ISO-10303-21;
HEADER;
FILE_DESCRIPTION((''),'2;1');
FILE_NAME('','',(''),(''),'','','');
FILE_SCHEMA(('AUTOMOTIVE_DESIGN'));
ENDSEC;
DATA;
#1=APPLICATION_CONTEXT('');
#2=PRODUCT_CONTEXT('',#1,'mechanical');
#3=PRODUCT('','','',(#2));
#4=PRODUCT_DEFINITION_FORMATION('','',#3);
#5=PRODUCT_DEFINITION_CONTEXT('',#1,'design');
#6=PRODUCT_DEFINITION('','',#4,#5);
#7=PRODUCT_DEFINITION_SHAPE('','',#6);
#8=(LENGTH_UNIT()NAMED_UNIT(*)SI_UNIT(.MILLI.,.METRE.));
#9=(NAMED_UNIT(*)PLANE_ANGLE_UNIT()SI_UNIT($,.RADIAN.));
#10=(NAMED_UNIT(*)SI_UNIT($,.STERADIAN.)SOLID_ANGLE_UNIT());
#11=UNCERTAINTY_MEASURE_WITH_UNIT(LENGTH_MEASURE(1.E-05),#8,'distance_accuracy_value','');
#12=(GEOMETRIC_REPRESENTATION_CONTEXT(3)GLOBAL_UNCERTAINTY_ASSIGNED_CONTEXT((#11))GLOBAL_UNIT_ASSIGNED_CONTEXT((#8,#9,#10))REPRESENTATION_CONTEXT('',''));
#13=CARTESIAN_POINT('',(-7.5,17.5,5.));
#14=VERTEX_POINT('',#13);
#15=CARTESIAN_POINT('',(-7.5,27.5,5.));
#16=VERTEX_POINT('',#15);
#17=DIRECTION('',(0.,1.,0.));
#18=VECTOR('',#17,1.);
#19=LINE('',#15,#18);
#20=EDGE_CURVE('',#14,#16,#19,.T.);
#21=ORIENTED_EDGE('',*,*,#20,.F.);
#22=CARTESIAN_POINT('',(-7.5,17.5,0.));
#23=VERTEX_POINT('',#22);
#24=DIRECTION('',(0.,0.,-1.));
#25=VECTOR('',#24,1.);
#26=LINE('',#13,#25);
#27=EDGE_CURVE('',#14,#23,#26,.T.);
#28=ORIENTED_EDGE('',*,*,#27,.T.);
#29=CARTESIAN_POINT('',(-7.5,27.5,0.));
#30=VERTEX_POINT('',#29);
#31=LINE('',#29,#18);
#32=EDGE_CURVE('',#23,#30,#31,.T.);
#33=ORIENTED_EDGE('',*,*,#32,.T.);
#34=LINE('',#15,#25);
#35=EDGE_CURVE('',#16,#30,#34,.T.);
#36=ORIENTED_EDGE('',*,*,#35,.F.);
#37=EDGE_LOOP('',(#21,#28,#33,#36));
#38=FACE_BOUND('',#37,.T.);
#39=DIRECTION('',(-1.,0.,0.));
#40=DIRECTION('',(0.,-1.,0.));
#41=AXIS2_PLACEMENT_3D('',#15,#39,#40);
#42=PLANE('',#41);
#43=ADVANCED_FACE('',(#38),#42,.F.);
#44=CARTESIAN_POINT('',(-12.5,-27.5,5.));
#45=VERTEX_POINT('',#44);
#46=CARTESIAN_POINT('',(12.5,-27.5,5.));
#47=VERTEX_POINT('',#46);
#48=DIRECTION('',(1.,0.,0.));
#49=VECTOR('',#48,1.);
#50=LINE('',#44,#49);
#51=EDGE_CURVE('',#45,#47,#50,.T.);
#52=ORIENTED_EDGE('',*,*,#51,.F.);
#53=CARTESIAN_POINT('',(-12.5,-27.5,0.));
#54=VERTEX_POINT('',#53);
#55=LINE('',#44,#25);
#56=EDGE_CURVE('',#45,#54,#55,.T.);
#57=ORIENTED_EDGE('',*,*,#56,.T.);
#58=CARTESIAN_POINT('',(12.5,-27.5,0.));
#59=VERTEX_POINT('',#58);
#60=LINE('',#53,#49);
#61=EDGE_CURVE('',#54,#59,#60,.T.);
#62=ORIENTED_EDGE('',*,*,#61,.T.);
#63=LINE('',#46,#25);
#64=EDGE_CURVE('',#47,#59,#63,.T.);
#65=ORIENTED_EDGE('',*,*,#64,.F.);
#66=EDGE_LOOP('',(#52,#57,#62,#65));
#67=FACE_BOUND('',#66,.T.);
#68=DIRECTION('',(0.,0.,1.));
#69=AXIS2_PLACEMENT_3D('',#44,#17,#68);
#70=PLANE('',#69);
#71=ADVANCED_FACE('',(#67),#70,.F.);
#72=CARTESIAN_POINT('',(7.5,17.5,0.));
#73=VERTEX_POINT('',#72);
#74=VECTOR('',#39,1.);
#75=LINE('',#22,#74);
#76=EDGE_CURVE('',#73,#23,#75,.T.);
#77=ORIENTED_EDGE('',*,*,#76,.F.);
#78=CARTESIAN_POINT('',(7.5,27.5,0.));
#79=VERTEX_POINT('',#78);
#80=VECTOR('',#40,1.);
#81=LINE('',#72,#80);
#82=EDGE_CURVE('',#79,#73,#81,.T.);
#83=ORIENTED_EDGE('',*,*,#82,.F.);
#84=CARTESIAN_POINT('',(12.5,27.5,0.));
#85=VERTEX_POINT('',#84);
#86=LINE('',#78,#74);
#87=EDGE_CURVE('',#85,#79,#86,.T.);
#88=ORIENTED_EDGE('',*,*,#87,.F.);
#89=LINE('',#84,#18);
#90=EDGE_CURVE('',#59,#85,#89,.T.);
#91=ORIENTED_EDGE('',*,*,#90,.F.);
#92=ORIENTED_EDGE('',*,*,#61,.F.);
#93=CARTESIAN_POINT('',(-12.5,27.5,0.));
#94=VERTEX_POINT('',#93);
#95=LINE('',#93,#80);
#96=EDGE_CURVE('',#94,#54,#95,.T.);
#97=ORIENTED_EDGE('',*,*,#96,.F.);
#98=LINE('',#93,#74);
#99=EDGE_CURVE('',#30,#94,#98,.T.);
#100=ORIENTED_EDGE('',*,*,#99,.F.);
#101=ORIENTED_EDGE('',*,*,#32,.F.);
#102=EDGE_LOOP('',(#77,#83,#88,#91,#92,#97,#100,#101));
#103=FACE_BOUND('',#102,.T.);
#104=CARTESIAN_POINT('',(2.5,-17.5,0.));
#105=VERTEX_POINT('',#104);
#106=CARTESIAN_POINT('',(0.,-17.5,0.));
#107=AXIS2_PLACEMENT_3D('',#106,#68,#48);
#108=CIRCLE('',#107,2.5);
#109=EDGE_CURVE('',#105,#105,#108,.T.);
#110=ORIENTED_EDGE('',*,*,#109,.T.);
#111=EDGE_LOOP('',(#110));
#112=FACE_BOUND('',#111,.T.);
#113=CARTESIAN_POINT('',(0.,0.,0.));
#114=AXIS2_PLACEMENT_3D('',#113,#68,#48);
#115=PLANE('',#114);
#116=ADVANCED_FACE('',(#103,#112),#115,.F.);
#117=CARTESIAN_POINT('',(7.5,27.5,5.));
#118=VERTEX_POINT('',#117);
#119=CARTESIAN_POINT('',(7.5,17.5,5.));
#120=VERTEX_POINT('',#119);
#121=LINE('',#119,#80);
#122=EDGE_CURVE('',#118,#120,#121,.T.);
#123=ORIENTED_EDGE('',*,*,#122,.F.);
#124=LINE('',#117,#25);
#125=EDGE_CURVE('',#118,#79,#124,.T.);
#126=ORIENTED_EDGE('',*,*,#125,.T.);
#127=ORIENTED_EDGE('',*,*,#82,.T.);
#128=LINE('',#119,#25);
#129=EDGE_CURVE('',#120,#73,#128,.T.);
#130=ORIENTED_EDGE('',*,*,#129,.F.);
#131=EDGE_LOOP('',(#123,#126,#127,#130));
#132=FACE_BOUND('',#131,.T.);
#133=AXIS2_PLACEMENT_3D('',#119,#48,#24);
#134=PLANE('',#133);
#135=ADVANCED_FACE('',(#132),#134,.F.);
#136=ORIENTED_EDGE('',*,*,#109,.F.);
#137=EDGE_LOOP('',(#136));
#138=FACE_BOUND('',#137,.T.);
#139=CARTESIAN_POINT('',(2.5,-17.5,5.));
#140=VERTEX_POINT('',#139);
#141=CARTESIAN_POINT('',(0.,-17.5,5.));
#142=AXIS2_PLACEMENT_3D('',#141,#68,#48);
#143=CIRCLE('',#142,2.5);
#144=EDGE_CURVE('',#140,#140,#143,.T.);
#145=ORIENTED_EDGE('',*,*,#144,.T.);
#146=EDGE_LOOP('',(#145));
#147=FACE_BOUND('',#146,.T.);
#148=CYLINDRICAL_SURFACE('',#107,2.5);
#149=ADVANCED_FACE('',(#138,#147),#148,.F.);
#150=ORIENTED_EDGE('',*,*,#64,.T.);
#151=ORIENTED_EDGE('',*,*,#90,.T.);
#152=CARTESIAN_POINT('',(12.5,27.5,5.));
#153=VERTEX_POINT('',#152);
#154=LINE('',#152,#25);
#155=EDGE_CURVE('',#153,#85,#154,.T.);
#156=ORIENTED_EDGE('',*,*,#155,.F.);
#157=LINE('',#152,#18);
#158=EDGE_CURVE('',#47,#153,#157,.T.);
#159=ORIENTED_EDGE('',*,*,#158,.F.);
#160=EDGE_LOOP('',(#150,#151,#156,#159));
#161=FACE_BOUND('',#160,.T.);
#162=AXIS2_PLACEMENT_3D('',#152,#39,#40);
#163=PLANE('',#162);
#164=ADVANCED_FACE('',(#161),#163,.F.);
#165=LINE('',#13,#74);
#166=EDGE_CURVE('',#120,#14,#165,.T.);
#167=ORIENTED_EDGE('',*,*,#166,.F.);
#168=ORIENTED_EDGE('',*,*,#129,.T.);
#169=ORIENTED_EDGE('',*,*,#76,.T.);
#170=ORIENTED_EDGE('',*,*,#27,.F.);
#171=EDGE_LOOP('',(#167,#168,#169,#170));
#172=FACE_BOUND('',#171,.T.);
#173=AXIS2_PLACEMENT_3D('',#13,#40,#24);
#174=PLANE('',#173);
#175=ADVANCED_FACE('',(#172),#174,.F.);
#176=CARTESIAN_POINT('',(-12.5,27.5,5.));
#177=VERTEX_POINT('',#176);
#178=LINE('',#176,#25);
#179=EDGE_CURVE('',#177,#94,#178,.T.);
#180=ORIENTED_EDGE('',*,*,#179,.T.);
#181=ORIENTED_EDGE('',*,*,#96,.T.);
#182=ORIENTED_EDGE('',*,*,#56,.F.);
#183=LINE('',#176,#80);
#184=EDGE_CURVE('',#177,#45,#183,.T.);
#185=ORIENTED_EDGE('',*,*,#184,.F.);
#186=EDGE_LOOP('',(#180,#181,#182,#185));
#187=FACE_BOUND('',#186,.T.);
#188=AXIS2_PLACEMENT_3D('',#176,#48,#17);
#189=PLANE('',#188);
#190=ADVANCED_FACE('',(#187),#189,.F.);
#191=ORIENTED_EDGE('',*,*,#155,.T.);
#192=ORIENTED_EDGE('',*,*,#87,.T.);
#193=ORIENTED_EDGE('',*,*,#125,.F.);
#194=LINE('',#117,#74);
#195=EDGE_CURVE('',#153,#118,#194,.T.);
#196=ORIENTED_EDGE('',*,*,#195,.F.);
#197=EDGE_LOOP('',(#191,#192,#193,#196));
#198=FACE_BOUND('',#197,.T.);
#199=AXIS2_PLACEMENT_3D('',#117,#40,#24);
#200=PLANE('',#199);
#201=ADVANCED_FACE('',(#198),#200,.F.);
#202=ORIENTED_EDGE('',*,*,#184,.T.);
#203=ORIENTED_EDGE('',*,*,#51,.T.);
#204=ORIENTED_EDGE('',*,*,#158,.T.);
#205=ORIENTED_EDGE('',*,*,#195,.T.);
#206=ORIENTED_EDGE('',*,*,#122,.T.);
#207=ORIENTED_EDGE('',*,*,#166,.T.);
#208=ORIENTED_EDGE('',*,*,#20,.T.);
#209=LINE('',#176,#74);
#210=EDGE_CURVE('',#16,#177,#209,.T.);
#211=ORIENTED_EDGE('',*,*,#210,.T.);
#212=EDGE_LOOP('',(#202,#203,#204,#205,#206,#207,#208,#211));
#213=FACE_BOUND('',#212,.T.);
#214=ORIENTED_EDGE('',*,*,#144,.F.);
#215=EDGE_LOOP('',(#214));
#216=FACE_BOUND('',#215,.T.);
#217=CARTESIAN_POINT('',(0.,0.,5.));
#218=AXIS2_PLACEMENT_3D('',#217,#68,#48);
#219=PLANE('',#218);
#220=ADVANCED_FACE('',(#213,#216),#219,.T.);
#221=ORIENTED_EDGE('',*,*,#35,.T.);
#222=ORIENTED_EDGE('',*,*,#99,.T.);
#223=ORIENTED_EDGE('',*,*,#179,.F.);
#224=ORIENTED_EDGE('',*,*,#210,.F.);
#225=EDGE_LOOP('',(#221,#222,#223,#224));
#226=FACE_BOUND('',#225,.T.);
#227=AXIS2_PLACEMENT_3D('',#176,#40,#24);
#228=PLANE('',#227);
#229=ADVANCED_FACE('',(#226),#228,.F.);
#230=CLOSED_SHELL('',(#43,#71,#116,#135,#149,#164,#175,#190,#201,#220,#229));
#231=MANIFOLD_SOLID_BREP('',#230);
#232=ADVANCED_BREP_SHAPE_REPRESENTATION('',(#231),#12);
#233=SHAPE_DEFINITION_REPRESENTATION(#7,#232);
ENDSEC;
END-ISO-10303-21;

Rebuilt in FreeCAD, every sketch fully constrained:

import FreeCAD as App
import Part
import Sketcher
Q = App.Units.Quantity

doc = App.newDocument("Part")
params = doc.addObject("Spreadsheet::Sheet", "Params")
for row, (alias, value) in enumerate([
    ("sketch1_width", "5 mm"),
    ("sketch1_width2", "25 mm"),
    ("sketch1_height", "10 mm"),
    ("sketch1_height2", "55 mm"),
    ("pad1_length", "5 mm"),
    ("sketch2_diameter", "5 mm"),
], start=1):
    params.set(f"A{row}", alias)
    params.set(f"B{row}", "=" + value)
    params.setAlias(f"B{row}", alias)

body = doc.addObject("PartDesign::Body", "Body")

# Sketch on XY plane
sketch1 = body.newObject("Sketcher::SketchObject", "Sketch")
sketch1.AttachmentSupport = (doc.getObject("XY_Plane"), [""])
sketch1.MapMode = "FlatFace"
sketch1.addGeometry([
    Part.LineSegment(App.Vector(-8, 18, 0), App.Vector(-8, 28, 0)),  # 0
    Part.LineSegment(App.Vector(-8, 28, 0), App.Vector(-12, 28, 0)),  # 1
    Part.LineSegment(App.Vector(-12, 28, 0), App.Vector(-12, -28, 0)),  # 2
    Part.LineSegment(App.Vector(-12, -28, 0), App.Vector(12, -28, 0)),  # 3
    Part.LineSegment(App.Vector(12, -28, 0), App.Vector(12, 28, 0)),  # 4
    Part.LineSegment(App.Vector(12, 28, 0), App.Vector(8, 28, 0)),  # 5
    Part.LineSegment(App.Vector(8, 28, 0), App.Vector(8, 18, 0)),  # 6
    Part.LineSegment(App.Vector(8, 18, 0), App.Vector(-8, 18, 0)),  # 7
], False)
sketch1.addConstraint([
    Sketcher.Constraint("Coincident", 0, 2, 1, 1),
    Sketcher.Constraint("Coincident", 1, 2, 2, 1),
    Sketcher.Constraint("Coincident", 2, 2, 3, 1),
    Sketcher.Constraint("Coincident", 3, 2, 4, 1),
    Sketcher.Constraint("Coincident", 4, 2, 5, 1),
    Sketcher.Constraint("Coincident", 5, 2, 6, 1),
    Sketcher.Constraint("Coincident", 6, 2, 7, 1),
    Sketcher.Constraint("Coincident", 7, 2, 0, 1),
    Sketcher.Constraint("Vertical", 0),
    Sketcher.Constraint("Horizontal", 1),
    Sketcher.Constraint("Vertical", 2),
    Sketcher.Constraint("Horizontal", 3),
    Sketcher.Constraint("Vertical", 4),
    Sketcher.Constraint("Horizontal", 5),
    Sketcher.Constraint("Vertical", 6),
    Sketcher.Constraint("Horizontal", 7),
    Sketcher.Constraint("Symmetric", 1, 2, 3, 2, -1, 1),
    Sketcher.Constraint("Symmetric", 0, 2, 5, 2, -2),
    Sketcher.Constraint("DistanceX", 1, 2, 1, 1, Q("5 mm")),
    Sketcher.Constraint("DistanceX", 3, 1, 3, 2, Q("25 mm")),
    Sketcher.Constraint("DistanceY", 0, 1, 0, 2, Q("10 mm")),
    Sketcher.Constraint("DistanceY", 2, 2, 2, 1, Q("55 mm")),
])
sketch1.setExpression("Constraints[18]", "Params.sketch1_width")
sketch1.setExpression("Constraints[19]", "Params.sketch1_width2")
sketch1.setExpression("Constraints[20]", "Params.sketch1_height")
sketch1.setExpression("Constraints[21]", "Params.sketch1_height2")
pad1 = body.newObject("PartDesign::Pad", "Pad")
pad1.Profile = sketch1
pad1.setExpression("Length", "Params.pad1_length")

# Sketch on XY plane
sketch2 = body.newObject("Sketcher::SketchObject", "Sketch001")
sketch2.AttachmentSupport = (doc.getObject("XY_Plane"), [""])
sketch2.MapMode = "FlatFace"
sketch2.AttachmentOffset = App.Placement(App.Vector(0, 0, 5), App.Rotation())
sketch2.addGeometry(Part.Circle(App.Vector(0, -17.5, 0), App.Vector(0, 0, 1), 2.5), False)
sketch2.addConstraint([
    Sketcher.Constraint("PointOnObject", 0, 3, -2),
    Sketcher.Constraint("Diameter", 0, Q("5 mm")),
    Sketcher.Constraint("DistanceY", 0, 3, -1, 1, Q("17.5 mm")),
])
sketch2.setExpression("Constraints[1]", "Params.sketch2_diameter")
pocket1 = body.newObject("PartDesign::Pocket", "Pocket")
pocket1.Profile = sketch2
pocket1.Type = "ThroughAll"

doc.recompute()
